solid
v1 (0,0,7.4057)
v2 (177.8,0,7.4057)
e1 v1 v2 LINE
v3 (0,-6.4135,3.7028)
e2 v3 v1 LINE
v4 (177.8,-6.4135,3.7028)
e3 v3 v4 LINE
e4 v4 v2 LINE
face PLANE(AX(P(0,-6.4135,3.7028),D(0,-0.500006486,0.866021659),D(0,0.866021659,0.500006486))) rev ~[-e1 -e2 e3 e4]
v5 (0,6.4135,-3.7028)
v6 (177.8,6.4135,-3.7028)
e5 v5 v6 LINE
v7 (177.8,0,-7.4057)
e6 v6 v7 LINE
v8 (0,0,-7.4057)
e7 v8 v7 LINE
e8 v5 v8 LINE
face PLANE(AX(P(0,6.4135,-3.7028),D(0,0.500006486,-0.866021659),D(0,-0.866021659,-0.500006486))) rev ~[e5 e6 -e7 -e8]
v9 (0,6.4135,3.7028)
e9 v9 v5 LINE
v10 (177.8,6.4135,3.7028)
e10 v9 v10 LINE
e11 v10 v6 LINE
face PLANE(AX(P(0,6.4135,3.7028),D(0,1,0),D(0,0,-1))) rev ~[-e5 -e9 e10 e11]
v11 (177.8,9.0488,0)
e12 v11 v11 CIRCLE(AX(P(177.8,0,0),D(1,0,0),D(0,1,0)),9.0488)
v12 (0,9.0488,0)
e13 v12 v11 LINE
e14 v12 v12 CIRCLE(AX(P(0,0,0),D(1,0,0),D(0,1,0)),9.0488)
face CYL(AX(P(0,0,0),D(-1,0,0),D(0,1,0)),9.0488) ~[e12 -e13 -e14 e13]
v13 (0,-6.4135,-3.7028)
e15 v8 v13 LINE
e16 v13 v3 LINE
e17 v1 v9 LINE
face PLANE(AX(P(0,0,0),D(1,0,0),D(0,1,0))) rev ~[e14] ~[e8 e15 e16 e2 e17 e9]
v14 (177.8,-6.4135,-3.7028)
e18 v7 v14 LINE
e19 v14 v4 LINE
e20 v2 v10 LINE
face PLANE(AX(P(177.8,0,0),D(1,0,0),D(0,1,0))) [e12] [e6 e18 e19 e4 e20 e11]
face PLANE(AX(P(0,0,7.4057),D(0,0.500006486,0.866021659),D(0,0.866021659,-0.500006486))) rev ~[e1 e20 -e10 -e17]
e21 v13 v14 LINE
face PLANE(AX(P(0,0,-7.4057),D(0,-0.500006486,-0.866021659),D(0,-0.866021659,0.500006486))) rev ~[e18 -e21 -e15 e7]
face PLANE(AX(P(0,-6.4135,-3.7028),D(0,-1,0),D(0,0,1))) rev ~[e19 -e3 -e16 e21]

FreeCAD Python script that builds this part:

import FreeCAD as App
import Part
import Sketcher
from FreeCAD import Vector
Q = App.Units.Quantity


def add_polygon(sketch, points):
    """Adds a closed chain of lines whose ends are joined by coincident constraints."""
    first, n = sketch.GeometryCount, len(points)
    for a, b in zip(points, points[1:] + points[:1]):
        sketch.addGeometry(Part.LineSegment(App.Vector(*a, 0), App.Vector(*b, 0)), False)
    for i in range(n):
        sketch.addConstraint(Sketcher.Constraint("Coincident", first + i, 2, first + (i + 1) % n, 1))

doc = App.newDocument("Part")
params = doc.addObject("Spreadsheet::Sheet", "Params")
for row, (alias, value) in enumerate([
    ("pad1_length", "7 in"),
], start=1):
    params.set(f"A{row}", alias)
    params.set(f"B{row}", "=" + value)
    params.setAlias(f"B{row}", alias)

body = doc.addObject("PartDesign::Body", "Body")

# Sketch on YZ plane
sketch1 = doc.addObject("Sketcher::SketchObject", "Sketch")
body.addObject(sketch1)
sketch1.AttachmentSupport = (doc.YZ_Plane, [""])
sketch1.MapMode = "FlatFace"
sketch1.addGeometry(Part.Circle(Vector(0, 0, 0), Vector(0, 0, 1), 9.0488), False)  # 0
add_polygon(sketch1, [(0, -7.4057), (-6.4135, -3.7028), (-6.4135, 3.7028), (0, 7.4057), (6.4135, 3.7028), (6.4135, -3.7028)])  # lines 1-6
sketch1.addConstraint([
    Sketcher.Constraint("Vertical", 2),
    Sketcher.Constraint("Vertical", 5),
    Sketcher.Constraint("Coincident", 0, 3, -1, 1),
    Sketcher.Constraint("Symmetric", 1, 2, 4, 2, -1, 1),
    Sketcher.Constraint("Symmetric", 3, 2, 6, 2, -1, 1),
    Sketcher.Constraint("PointOnObject", 3, 2, -2),
    Sketcher.Constraint("Parallel", 3, 6),
    Sketcher.Constraint("Horizontal", 2, 2, 4, 2),
    Sketcher.Constraint("Diameter", 0, Q("0.7125 in")),
    Sketcher.Constraint("Angle", 1, Q("149.9996 deg")),
    Sketcher.Constraint("DistanceX", 2, 2, 4, 2, Q("0.505 in")),
    Sketcher.Constraint("DistanceY", 2, 1, 2, 2, 7.4056),
])
pad1 = doc.addObject("PartDesign::Pad", "Pad")
body.addObject(pad1)
pad1.Profile = sketch1
pad1.setExpression("Length", "Params.pad1_length")

doc.recompute()
